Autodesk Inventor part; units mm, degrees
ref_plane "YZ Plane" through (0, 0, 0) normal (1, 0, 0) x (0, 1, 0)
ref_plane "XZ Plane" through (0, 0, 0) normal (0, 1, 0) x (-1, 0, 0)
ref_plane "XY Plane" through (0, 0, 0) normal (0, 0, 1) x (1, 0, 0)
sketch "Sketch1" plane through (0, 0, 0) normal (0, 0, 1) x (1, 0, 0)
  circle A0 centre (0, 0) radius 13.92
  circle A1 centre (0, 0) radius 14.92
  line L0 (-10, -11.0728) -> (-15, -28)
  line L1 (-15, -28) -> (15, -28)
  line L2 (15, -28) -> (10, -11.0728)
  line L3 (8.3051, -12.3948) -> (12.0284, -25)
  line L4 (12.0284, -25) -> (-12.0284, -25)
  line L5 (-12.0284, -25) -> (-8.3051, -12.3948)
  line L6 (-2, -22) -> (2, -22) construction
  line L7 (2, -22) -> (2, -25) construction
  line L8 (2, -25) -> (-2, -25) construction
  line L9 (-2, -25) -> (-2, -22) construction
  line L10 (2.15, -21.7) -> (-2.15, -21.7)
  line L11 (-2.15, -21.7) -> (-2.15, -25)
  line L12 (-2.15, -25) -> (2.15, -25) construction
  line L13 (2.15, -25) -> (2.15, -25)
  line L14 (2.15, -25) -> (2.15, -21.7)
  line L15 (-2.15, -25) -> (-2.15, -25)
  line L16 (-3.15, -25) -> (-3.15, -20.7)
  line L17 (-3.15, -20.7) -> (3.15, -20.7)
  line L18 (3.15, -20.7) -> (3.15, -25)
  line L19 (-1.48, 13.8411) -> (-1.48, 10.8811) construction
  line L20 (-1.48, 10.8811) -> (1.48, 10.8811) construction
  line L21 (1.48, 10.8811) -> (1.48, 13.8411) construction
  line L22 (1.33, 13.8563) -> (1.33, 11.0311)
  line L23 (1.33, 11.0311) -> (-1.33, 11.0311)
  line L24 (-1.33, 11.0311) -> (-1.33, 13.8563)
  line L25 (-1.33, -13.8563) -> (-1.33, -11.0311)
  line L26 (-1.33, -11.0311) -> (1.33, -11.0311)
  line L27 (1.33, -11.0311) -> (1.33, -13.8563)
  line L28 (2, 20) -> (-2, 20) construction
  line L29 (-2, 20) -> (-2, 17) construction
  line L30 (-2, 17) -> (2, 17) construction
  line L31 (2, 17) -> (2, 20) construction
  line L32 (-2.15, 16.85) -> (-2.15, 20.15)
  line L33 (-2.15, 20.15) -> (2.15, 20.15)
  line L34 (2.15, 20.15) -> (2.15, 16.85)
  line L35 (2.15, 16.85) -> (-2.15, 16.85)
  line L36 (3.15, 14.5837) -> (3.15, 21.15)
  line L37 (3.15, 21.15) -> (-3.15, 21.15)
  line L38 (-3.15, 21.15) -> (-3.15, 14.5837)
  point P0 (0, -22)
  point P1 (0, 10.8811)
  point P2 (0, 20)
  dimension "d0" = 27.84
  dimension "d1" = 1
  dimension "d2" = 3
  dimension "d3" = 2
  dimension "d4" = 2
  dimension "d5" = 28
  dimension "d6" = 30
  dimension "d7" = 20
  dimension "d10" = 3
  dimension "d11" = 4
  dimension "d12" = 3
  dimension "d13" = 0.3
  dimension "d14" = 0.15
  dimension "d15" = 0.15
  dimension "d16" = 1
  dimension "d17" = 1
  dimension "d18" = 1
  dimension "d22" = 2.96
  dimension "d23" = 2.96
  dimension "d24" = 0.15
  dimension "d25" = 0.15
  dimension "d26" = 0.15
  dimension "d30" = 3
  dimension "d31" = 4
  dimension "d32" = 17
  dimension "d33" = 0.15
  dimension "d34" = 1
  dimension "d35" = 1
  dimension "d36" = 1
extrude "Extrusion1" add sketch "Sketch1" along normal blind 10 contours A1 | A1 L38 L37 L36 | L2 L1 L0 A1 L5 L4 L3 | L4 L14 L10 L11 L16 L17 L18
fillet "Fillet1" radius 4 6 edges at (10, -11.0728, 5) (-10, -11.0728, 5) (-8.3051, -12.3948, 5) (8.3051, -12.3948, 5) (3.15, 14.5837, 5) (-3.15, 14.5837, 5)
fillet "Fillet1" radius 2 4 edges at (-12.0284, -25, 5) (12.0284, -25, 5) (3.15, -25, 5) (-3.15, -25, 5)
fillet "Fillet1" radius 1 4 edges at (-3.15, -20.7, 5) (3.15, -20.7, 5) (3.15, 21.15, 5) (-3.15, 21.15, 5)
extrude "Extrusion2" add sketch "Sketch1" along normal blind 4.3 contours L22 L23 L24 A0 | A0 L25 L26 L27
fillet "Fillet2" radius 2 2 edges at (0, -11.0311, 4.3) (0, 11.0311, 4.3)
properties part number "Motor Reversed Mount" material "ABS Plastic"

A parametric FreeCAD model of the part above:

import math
import FreeCAD as App
import Part
import Sketcher


def edges_at(feature, points):
    """Names of the edges that pass closest to the given points."""
    edges = feature.Shape.Edges
    near = lambda p: min(range(len(edges)), key=lambda i: edges[i].distToShape(Part.Vertex(*p))[0])
    return sorted({f"Edge{near(p) + 1}" for p in points})


def add_polygon(sketch, points):
    """Adds a closed chain of lines whose ends are joined by coincident constraints."""
    first, n = sketch.GeometryCount, len(points)
    for a, b in zip(points, points[1:] + points[:1]):
        sketch.addGeometry(Part.LineSegment(App.Vector(*a, 0), App.Vector(*b, 0)), False)
    for i in range(n):
        sketch.addConstraint(Sketcher.Constraint("Coincident", first + i, 2, first + (i + 1) % n, 1))

doc = App.newDocument("Part")
body = doc.addObject("PartDesign::Body", "Body")

sketch1 = body.newObject("Sketcher::SketchObject", "Sketch")
sketch1.AttachmentSupport = (doc.getObject("XY_Plane"), [""])
sketch1.MapMode = "FlatFace"
sketch1.addGeometry(Part.ArcOfCircle(Part.Circle(App.Vector(0, 0, 0), App.Vector(0, 0, 1), 14.92), math.radians(-47.914368), math.radians(77.811664)), False)
sketch1.addGeometry(Part.LineSegment(App.Vector(3.15, 14.5837, 0), App.Vector(3.15, 21.15, 0)), False)
sketch1.addGeometry(Part.LineSegment(App.Vector(3.15, 21.15, 0), App.Vector(-3.15, 21.15, 0)), False)
sketch1.addGeometry(Part.LineSegment(App.Vector(-3.15, 21.15, 0), App.Vector(-3.15, 14.5837, 0)), False)
sketch1.addGeometry(Part.ArcOfCircle(Part.Circle(App.Vector(0, 0, 0), App.Vector(0, 0, 1), 14.92), math.radians(102.188336), math.radians(227.914368)), False)
sketch1.addGeometry(Part.LineSegment(App.Vector(-10, -11.0728, 0), App.Vector(-15, -28, 0)), False)
sketch1.addGeometry(Part.LineSegment(App.Vector(-15, -28, 0), App.Vector(15, -28, 0)), False)
sketch1.addGeometry(Part.LineSegment(App.Vector(15, -28, 0), App.Vector(10, -11.0728, 0)), False)
sketch1.addGeometry(Part.ArcOfCircle(Part.Circle(App.Vector(0, 0, 0), App.Vector(0, 0, 1), 14.92), math.radians(-123.823948), math.radians(-56.176052)), False)
sketch1.addGeometry(Part.LineSegment(App.Vector(8.3051, -12.3948, 0), App.Vector(12.0284, -25, 0)), False)
sketch1.addGeometry(Part.LineSegment(App.Vector(12.0284, -25, 0), App.Vector(3.15, -25, 0)), False)
sketch1.addGeometry(Part.LineSegment(App.Vector(3.15, -25, 0), App.Vector(3.15, -20.7, 0)), False)
sketch1.addGeometry(Part.LineSegment(App.Vector(3.15, -20.7, 0), App.Vector(-3.15, -20.7, 0)), False)
sketch1.addGeometry(Part.LineSegment(App.Vector(-3.15, -20.7, 0), App.Vector(-3.15, -25, 0)), False)
sketch1.addGeometry(Part.LineSegment(App.Vector(-3.15, -25, 0), App.Vector(-12.0284, -25, 0)), False)
sketch1.addGeometry(Part.LineSegment(App.Vector(-12.0284, -25, 0), App.Vector(-8.3051, -12.3948, 0)), False)
sketch1.addGeometry(Part.Circle(App.Vector(0, 0, 0), App.Vector(0, 0, 1), 13.92), False)
add_polygon(sketch1, [(2.15, -25), (-2.15, -25), (-2.15, -21.7), (2.15, -21.7)])
add_polygon(sketch1, [(-2.15, 16.85), (-2.15, 20.15), (2.15, 20.15), (2.15, 16.85)])
sketch1.addConstraint(Sketcher.Constraint("Coincident", 0, 2, 1, 1))
sketch1.addConstraint(Sketcher.Constraint("Coincident", 1, 2, 2, 1))
sketch1.addConstraint(Sketcher.Constraint("Coincident", 2, 2, 3, 1))
sketch1.addConstraint(Sketcher.Constraint("Coincident", 3, 2, 4, 1))
sketch1.addConstraint(Sketcher.Constraint("Coincident", 4, 2, 5, 1))
sketch1.addConstraint(Sketcher.Constraint("Coincident", 5, 2, 6, 1))
sketch1.addConstraint(Sketcher.Constraint("Coincident", 6, 2, 7, 1))
sketch1.addConstraint(Sketcher.Constraint("Coincident", 7, 2, 0, 1))
sketch1.addConstraint(Sketcher.Constraint("Coincident", 8, 2, 9, 1))
sketch1.addConstraint(Sketcher.Constraint("Coincident", 9, 2, 10, 1))
sketch1.addConstraint(Sketcher.Constraint("Coincident", 10, 2, 11, 1))
sketch1.addConstraint(Sketcher.Constraint("Coincident", 11, 2, 12, 1))
sketch1.addConstraint(Sketcher.Constraint("Coincident", 12, 2, 13, 1))
sketch1.addConstraint(Sketcher.Constraint("Coincident", 13, 2, 14, 1))
sketch1.addConstraint(Sketcher.Constraint("Coincident", 14, 2, 15, 1))
sketch1.addConstraint(Sketcher.Constraint("Coincident", 15, 2, 8, 1))
sketch1.addConstraint(Sketcher.Constraint("Vertical", 1))
sketch1.addConstraint(Sketcher.Constraint("Horizontal", 2))
sketch1.addConstraint(Sketcher.Constraint("Vertical", 3))
sketch1.addConstraint(Sketcher.Constraint("Horizontal", 6))
sketch1.addConstraint(Sketcher.Constraint("Horizontal", 10))
sketch1.addConstraint(Sketcher.Constraint("Vertical", 11))
sketch1.addConstraint(Sketcher.Constraint("Horizontal", 12))
sketch1.addConstraint(Sketcher.Constraint("Vertical", 13))
sketch1.addConstraint(Sketcher.Constraint("Horizontal", 14))
sketch1.addConstraint(Sketcher.Constraint("Horizontal", 17))
sketch1.addConstraint(Sketcher.Constraint("Vertical", 18))
sketch1.addConstraint(Sketcher.Constraint("Horizontal", 19))
sketch1.addConstraint(Sketcher.Constraint("Vertical", 20))
sketch1.addConstraint(Sketcher.Constraint("Vertical", 21))
sketch1.addConstraint(Sketcher.Constraint("Horizontal", 22))
sketch1.addConstraint(Sketcher.Constraint("Vertical", 23))
sketch1.addConstraint(Sketcher.Constraint("Horizontal", 24))
sketch1.addConstraint(Sketcher.Constraint("Coincident", 0, 3, -1, 1))
sketch1.addConstraint(Sketcher.Constraint("Coincident", 4, 3, -1, 1))
sketch1.addConstraint(Sketcher.Constraint("Coincident", 8, 3, -1, 1))
sketch1.addConstraint(Sketcher.Constraint("Coincident", 16, 3, -1, 1))
sketch1.addConstraint(Sketcher.Constraint("Equal", 0, 4))
sketch1.addConstraint(Sketcher.Constraint("Equal", 4, 8))
sketch1.addConstraint(Sketcher.Constraint("Symmetric", 10, 2, 13, 2, -2))
sketch1.addConstraint(Sketcher.Constraint("Parallel", 7, 9))
sketch1.addConstraint(Sketcher.Constraint("Parallel", 5, 15))
sketch1.addConstraint(Sketcher.Constraint("Horizontal", 0, 2, 3, 2))
sketch1.addConstraint(Sketcher.Constraint("Horizontal", 4, 2, 7, 2))
sketch1.addConstraint(Sketcher.Constraint("Horizontal", 8, 2, 15, 2))
sketch1.addConstraint(Sketcher.Constraint("Horizontal", 14, 2, 17, 2))
sketch1.addConstraint(Sketcher.Constraint("Vertical", 1, 2, 10, 2))
sketch1.addConstraint(Sketcher.Constraint("Vertical", 18, 2, 21, 2))
sketch1.addConstraint(Sketcher.Constraint("Vertical", 20, 2, 22, 2))
sketch1.addConstraint(Sketcher.Constraint("Equal", 10, 14))
sketch1.addConstraint(Sketcher.Constraint("Equal", 24, 11))
sketch1.addConstraint(Sketcher.Constraint("Equal", 20, 21))
sketch1.addConstraint(Sketcher.Constraint("Diameter", 16, 27.84))
sketch1.addConstraint(Sketcher.Constraint("DistanceX", 6, 1, 6, 2, 30.0))
sketch1.addConstraint(Sketcher.Constraint("DistanceY", 5, 2, -1, 1, 28.0))
sketch1.addConstraint(Sketcher.Constraint("DistanceY", 6, 2, 9, 2, 3.0))
sketch1.addConstraint(Sketcher.Constraint("DistanceX", 13, 2, 17, 2, 1.0))
sketch1.addConstraint(Sketcher.Constraint("DistanceY", 18, 2, 12, 2, 1.0))
sketch1.addConstraint(Sketcher.Constraint("DistanceX", 19, 2, 11, 2, 1.0))
sketch1.addConstraint(Sketcher.Constraint("DistanceY", 21, 2, 2, 2, 1.0))
sketch1.addConstraint(Sketcher.Constraint("Radius", 0, 14.92))
sketch1.addConstraint(Sketcher.Constraint("DistanceX", 2, 2, 2, 1, 6.3))
sketch1.addConstraint(Sketcher.Constraint("DistanceX", 4, 2, -1, 1, 10.0))
sketch1.addConstraint(Sketcher.Constraint("DistanceY", -1, 1, 1, 2, 21.15))
sketch1.addConstraint(Sketcher.Constraint("DistanceX", 10, 2, 10, 1, 8.8784))
pad1 = body.newObject("PartDesign::Pad", "Pad")
pad1.Profile = sketch1
pad1.Length = 10
doc.recompute()

fillet = body.newObject("PartDesign::Fillet", "Fillet")
fillet.Base = (pad1, edges_at(pad1, [
    (10, -11.073, 5),
    (-10, -11.073, 5),
    (-8.305, -12.395, 5),
    (8.305, -12.395, 5),
    (3.15, 14.584, 5),
    (-3.15, 14.584, 5),
]))
fillet.Radius = 4
doc.recompute()

fillet2 = body.newObject("PartDesign::Fillet", "Fillet001")
fillet2.Base = (fillet, edges_at(fillet, [
    (-12.028, -25, 5),
    (12.028, -25, 5),
    (3.15, -25, 5),
    (-3.15, -25, 5),
]))
fillet2.Radius = 2
doc.recompute()

fillet3 = body.newObject("PartDesign::Fillet", "Fillet002")
fillet3.Base = (fillet2, edges_at(fillet2, [
    (-3.15, -20.7, 5),
    (3.15, -20.7, 5),
    (3.15, 21.15, 5),
    (-3.15, 21.15, 5),
]))
fillet3.Radius = 1

sketch2 = body.newObject("Sketcher::SketchObject", "Sketch001")
sketch2.AttachmentSupport = (doc.getObject("XY_Plane"), [""])
sketch2.MapMode = "FlatFace"
sketch2.addGeometry(Part.LineSegment(App.Vector(1.33, 11.0311, 0), App.Vector(1.33, 13.8563, 0)), False)
sketch2.addGeometry(Part.ArcOfCircle(Part.Circle(App.Vector(0, 0, 0), App.Vector(0, 0, 1), 13.92), math.radians(84.517249), math.radians(95.482751)), False)
sketch2.addGeometry(Part.LineSegment(App.Vector(-1.33, 13.8563, 0), App.Vector(-1.33, 11.0311, 0)), False)
sketch2.addGeometry(Part.LineSegment(App.Vector(-1.33, 11.0311, 0), App.Vector(1.33, 11.0311, 0)), False)
sketch2.addGeometry(Part.ArcOfCircle(Part.Circle(App.Vector(0, 0, 0), App.Vector(0, 0, 1), 13.92), math.radians(-95.482751), math.radians(-84.517249)), False)
sketch2.addGeometry(Part.LineSegment(App.Vector(1.33, -13.8563, 0), App.Vector(1.33, -11.0311, 0)), False)
sketch2.addGeometry(Part.LineSegment(App.Vector(1.33, -11.0311, 0), App.Vector(-1.33, -11.0311, 0)), False)
sketch2.addGeometry(Part.LineSegment(App.Vector(-1.33, -11.0311, 0), App.Vector(-1.33, -13.8563, 0)), False)
sketch2.addConstraint(Sketcher.Constraint("Coincident", 0, 2, 1, 1))
sketch2.addConstraint(Sketcher.Constraint("Coincident", 1, 2, 2, 1))
sketch2.addConstraint(Sketcher.Constraint("Coincident", 2, 2, 3, 1))
sketch2.addConstraint(Sketcher.Constraint("Coincident", 3, 2, 0, 1))
sketch2.addConstraint(Sketcher.Constraint("Coincident", 4, 2, 5, 1))
sketch2.addConstraint(Sketcher.Constraint("Coincident", 5, 2, 6, 1))
sketch2.addConstraint(Sketcher.Constraint("Coincident", 6, 2, 7, 1))
sketch2.addConstraint(Sketcher.Constraint("Coincident", 7, 2, 4, 1))
sketch2.addConstraint(Sketcher.Constraint("Vertical", 0))
sketch2.addConstraint(Sketcher.Constraint("Vertical", 2))
sketch2.addConstraint(Sketcher.Constraint("Horizontal", 3))
sketch2.addConstraint(Sketcher.Constraint("Vertical", 5))
sketch2.addConstraint(Sketcher.Constraint("Horizontal", 6))
sketch2.addConstraint(Sketcher.Constraint("Vertical", 7))
sketch2.addConstraint(Sketcher.Constraint("Coincident", 1, 3, -1, 1))
sketch2.addConstraint(Sketcher.Constraint("Coincident", 4, 3, -1, 1))
sketch2.addConstraint(Sketcher.Constraint("Equal", 1, 4))
sketch2.addConstraint(Sketcher.Constraint("Symmetric", 2, 2, 5, 2, -1, 1))
sketch2.addConstraint(Sketcher.Constraint("Horizontal", 0, 2, 1, 2))
sketch2.addConstraint(Sketcher.Constraint("Horizontal", 4, 2, 7, 2))
sketch2.addConstraint(Sketcher.Constraint("Radius", 1, 13.92))
sketch2.addConstraint(Sketcher.Constraint("DistanceX", 3, 1, 3, 2, 2.66))
sketch2.addConstraint(Sketcher.Constraint("DistanceY", 0, 1, 0, 2, 2.8252))
pad2 = body.newObject("PartDesign::Pad", "Pad001")
pad2.Profile = sketch2
pad2.Length = 4.3
doc.recompute()

fillet4 = body.newObject("PartDesign::Fillet", "Fillet003")
fillet4.Base = (pad2, edges_at(pad2, [(0, -11.031, 4.3), (0, 11.031, 4.3)]))
fillet4.Radius = 2

doc.recompute()
